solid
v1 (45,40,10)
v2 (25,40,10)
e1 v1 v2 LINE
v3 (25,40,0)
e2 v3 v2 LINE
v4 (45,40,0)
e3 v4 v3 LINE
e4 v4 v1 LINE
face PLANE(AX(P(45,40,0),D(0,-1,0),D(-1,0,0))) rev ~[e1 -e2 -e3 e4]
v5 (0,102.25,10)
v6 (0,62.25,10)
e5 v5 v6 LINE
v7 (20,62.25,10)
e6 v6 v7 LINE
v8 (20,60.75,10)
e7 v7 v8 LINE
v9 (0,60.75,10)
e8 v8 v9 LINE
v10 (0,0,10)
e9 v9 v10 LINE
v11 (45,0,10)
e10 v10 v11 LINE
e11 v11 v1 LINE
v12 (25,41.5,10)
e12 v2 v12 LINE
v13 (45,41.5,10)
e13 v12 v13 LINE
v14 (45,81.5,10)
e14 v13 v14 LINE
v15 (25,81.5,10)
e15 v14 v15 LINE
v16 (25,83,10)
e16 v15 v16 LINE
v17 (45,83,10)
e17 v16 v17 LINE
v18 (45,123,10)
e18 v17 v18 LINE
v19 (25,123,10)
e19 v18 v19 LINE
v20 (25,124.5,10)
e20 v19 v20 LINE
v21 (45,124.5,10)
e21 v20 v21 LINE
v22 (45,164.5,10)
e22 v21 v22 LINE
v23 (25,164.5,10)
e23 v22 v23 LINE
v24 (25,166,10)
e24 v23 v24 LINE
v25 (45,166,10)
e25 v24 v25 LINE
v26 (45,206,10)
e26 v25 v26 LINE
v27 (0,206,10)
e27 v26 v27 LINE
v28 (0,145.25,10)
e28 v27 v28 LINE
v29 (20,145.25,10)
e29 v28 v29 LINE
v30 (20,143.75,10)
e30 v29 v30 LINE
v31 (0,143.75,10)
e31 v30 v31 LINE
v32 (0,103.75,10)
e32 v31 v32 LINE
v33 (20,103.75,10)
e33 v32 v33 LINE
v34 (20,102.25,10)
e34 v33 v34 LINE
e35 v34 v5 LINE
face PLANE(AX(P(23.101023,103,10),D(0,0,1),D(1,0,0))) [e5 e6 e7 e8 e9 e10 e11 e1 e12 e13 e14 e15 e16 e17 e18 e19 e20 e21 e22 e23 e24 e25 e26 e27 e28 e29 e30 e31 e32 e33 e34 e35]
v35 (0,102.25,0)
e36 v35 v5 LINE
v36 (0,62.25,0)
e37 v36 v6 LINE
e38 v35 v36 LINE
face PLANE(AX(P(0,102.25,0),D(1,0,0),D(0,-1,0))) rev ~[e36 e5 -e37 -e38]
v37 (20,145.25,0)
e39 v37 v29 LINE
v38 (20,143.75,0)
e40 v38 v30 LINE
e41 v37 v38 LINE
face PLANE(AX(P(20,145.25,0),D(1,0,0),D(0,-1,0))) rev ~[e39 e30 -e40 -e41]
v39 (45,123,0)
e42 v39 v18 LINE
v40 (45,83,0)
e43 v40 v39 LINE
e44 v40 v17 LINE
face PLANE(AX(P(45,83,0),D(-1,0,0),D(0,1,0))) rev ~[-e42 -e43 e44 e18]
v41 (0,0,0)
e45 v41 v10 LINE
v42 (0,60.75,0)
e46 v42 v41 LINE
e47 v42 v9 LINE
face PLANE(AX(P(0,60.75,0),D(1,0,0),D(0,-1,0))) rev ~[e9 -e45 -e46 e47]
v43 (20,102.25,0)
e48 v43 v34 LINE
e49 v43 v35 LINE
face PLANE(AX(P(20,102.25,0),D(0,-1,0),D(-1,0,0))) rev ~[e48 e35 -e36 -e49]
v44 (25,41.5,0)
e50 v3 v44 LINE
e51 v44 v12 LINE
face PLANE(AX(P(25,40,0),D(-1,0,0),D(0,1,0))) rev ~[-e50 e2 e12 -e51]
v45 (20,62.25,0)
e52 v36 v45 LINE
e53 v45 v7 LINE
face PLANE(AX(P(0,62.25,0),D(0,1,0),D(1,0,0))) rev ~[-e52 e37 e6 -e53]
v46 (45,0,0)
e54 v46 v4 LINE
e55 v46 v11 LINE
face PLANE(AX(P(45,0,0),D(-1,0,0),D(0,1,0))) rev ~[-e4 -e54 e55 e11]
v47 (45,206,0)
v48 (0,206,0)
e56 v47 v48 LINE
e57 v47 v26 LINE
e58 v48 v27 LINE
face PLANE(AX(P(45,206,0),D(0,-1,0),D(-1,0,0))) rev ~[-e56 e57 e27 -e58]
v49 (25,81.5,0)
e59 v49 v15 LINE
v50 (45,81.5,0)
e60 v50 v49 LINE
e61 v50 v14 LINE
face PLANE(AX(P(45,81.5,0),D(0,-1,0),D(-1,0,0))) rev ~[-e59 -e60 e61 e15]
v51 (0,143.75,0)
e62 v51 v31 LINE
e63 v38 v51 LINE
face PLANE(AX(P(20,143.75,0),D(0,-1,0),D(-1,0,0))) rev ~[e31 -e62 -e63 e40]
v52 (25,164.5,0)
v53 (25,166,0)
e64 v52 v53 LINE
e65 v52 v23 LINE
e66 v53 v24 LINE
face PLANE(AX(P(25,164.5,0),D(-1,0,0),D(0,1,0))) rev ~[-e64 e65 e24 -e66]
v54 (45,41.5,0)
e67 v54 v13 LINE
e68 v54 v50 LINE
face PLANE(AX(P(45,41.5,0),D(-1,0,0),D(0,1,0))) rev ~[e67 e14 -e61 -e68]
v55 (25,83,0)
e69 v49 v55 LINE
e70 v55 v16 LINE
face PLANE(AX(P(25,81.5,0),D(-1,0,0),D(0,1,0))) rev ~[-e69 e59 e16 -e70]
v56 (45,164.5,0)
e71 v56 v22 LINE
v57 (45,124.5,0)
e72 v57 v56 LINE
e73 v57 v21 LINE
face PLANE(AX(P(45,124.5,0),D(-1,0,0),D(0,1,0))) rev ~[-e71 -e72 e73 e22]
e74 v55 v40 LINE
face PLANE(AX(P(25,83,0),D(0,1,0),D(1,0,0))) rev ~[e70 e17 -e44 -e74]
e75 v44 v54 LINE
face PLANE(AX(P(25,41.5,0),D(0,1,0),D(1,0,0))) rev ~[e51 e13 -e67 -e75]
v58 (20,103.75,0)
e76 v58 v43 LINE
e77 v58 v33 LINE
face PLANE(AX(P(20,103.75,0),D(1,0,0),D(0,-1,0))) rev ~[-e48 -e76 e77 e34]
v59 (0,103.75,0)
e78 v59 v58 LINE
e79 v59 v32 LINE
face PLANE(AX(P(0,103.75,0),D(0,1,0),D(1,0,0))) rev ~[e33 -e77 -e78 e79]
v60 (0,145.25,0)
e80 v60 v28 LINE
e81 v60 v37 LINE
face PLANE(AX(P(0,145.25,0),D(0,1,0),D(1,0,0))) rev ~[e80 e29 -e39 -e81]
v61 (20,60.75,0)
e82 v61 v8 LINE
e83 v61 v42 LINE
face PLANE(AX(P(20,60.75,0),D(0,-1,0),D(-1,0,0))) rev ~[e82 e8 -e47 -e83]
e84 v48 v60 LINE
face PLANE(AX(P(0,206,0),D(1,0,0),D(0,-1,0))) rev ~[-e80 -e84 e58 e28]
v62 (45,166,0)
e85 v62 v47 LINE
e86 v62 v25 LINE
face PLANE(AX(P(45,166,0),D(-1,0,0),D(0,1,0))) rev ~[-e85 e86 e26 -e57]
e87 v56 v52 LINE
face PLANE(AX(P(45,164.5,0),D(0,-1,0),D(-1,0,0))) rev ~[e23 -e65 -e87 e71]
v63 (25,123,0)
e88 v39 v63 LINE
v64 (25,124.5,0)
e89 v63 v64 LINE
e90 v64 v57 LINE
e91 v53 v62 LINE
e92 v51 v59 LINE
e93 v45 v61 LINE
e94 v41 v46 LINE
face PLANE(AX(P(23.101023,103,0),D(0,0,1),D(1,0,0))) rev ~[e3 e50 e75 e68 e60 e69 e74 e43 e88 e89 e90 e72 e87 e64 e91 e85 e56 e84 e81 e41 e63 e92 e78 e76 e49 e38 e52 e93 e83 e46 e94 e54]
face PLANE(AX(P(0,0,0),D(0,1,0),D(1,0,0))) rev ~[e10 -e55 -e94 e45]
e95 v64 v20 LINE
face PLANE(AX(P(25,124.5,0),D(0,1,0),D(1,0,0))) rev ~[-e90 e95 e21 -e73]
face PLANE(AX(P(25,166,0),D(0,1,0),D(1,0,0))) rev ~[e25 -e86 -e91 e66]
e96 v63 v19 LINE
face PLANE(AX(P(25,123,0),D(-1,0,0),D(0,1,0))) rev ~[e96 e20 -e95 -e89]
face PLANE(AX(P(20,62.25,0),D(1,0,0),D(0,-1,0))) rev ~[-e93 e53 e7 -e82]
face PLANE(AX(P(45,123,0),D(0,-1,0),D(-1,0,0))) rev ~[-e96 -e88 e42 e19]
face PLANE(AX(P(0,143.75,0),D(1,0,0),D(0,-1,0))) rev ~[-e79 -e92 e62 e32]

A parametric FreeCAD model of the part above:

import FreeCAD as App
import Part
import Sketcher

V = App.Vector
Q = App.Units.Quantity

doc = App.newDocument("Part")
body = doc.addObject("PartDesign::Body", "Body")

sketch1 = body.newObject("Sketcher::SketchObject", "Sketch")
sketch1.AttachmentSupport = (doc.getObject("XY_Plane"), [""])
sketch1.MapMode = "FlatFace"
sketch1.addGeometry([
    Part.LineSegment(V(0, 60.8, 0), V(0, 0, 0)),
    Part.LineSegment(V(0, 0, 0), V(45, 0, 0)),
    Part.LineSegment(V(45, 0, 0), V(45, 40, 0)),
    Part.LineSegment(V(45, 40, 0), V(25, 40, 0)),
    Part.LineSegment(V(25, 40, 0), V(25, 41.5, 0)),
    Part.LineSegment(V(25, 41.5, 0), V(45, 41.5, 0)),
    Part.LineSegment(V(45, 41.5, 0), V(45, 81.5, 0)),
    Part.LineSegment(V(45, 81.5, 0), V(25, 81.5, 0)),
    Part.LineSegment(V(25, 81.5, 0), V(25, 83, 0)),
    Part.LineSegment(V(25, 83, 0), V(45, 83, 0)),
    Part.LineSegment(V(45, 83, 0), V(45, 123, 0)),
    Part.LineSegment(V(45, 123, 0), V(25, 123, 0)),
    Part.LineSegment(V(25, 123, 0), V(25, 124.5, 0)),
    Part.LineSegment(V(25, 124.5, 0), V(45, 124.5, 0)),
    Part.LineSegment(V(45, 124.5, 0), V(45, 164.5, 0)),
    Part.LineSegment(V(45, 164.5, 0), V(25, 164.5, 0)),
    Part.LineSegment(V(25, 164.5, 0), V(25, 166, 0)),
    Part.LineSegment(V(25, 166, 0), V(45, 166, 0)),
    Part.LineSegment(V(45, 166, 0), V(45, 206, 0)),
    Part.LineSegment(V(45, 206, 0), V(0, 206, 0)),
    Part.LineSegment(V(0, 206, 0), V(0, 145.2, 0)),
    Part.LineSegment(V(0, 145.2, 0), V(20, 145.2, 0)),
    Part.LineSegment(V(20, 145.2, 0), V(20, 143.8, 0)),
    Part.LineSegment(V(20, 143.8, 0), V(0, 143.8, 0)),
    Part.LineSegment(V(0, 143.8, 0), V(0, 103.8, 0)),
    Part.LineSegment(V(0, 103.8, 0), V(20, 103.8, 0)),
    Part.LineSegment(V(20, 103.8, 0), V(20, 102.2, 0)),
    Part.LineSegment(V(20, 102.2, 0), V(0, 102.2, 0)),
    Part.LineSegment(V(0, 102.2, 0), V(0, 62.2, 0)),
    Part.LineSegment(V(0, 62.2, 0), V(20, 62.2, 0)),
    Part.LineSegment(V(20, 62.2, 0), V(20, 60.8, 0)),
    Part.LineSegment(V(20, 60.8, 0), V(0, 60.8, 0)),
], False)
sketch1.addConstraint([
    Sketcher.Constraint("Coincident", 0, 2, 1, 1),
    Sketcher.Constraint("Coincident", 1, 2, 2, 1),
    Sketcher.Constraint("Coincident", 2, 2, 3, 1),
    Sketcher.Constraint("Coincident", 3, 2, 4, 1),
    Sketcher.Constraint("Coincident", 4, 2, 5, 1),
    Sketcher.Constraint("Coincident", 5, 2, 6, 1),
    Sketcher.Constraint("Coincident", 6, 2, 7, 1),
    Sketcher.Constraint("Coincident", 7, 2, 8, 1),
    Sketcher.Constraint("Coincident", 8, 2, 9, 1),
    Sketcher.Constraint("Coincident", 9, 2, 10, 1),
    Sketcher.Constraint("Coincident", 10, 2, 11, 1),
    Sketcher.Constraint("Coincident", 11, 2, 12, 1),
    Sketcher.Constraint("Coincident", 12, 2, 13, 1),
    Sketcher.Constraint("Coincident", 13, 2, 14, 1),
    Sketcher.Constraint("Coincident", 14, 2, 15, 1),
    Sketcher.Constraint("Coincident", 15, 2, 16, 1),
    Sketcher.Constraint("Coincident", 16, 2, 17, 1),
    Sketcher.Constraint("Coincident", 17, 2, 18, 1),
    Sketcher.Constraint("Coincident", 18, 2, 19, 1),
    Sketcher.Constraint("Coincident", 19, 2, 20, 1),
    Sketcher.Constraint("Coincident", 20, 2, 21, 1),
    Sketcher.Constraint("Coincident", 21, 2, 22, 1),
    Sketcher.Constraint("Coincident", 22, 2, 23, 1),
    Sketcher.Constraint("Coincident", 23, 2, 24, 1),
    Sketcher.Constraint("Coincident", 24, 2, 25, 1),
    Sketcher.Constraint("Coincident", 25, 2, 26, 1),
    Sketcher.Constraint("Coincident", 26, 2, 27, 1),
    Sketcher.Constraint("Coincident", 27, 2, 28, 1),
    Sketcher.Constraint("Coincident", 28, 2, 29, 1),
    Sketcher.Constraint("Coincident", 29, 2, 30, 1),
    Sketcher.Constraint("Coincident", 30, 2, 31, 1),
    Sketcher.Constraint("Coincident", 31, 2, 0, 1),
    Sketcher.Constraint("Vertical", 0),
    Sketcher.Constraint("Horizontal", 1),
    Sketcher.Constraint("Vertical", 2),
    Sketcher.Constraint("Horizontal", 3),
    Sketcher.Constraint("Vertical", 4),
    Sketcher.Constraint("Horizontal", 5),
    Sketcher.Constraint("Vertical", 6),
    Sketcher.Constraint("Horizontal", 7),
    Sketcher.Constraint("Vertical", 8),
    Sketcher.Constraint("Horizontal", 9),
    Sketcher.Constraint("Vertical", 10),
    Sketcher.Constraint("Horizontal", 11),
    Sketcher.Constraint("Vertical", 12),
    Sketcher.Constraint("Horizontal", 13),
    Sketcher.Constraint("Vertical", 14),
    Sketcher.Constraint("Horizontal", 15),
    Sketcher.Constraint("Vertical", 16),
    Sketcher.Constraint("Horizontal", 17),
    Sketcher.Constraint("Vertical", 18),
    Sketcher.Constraint("Horizontal", 19),
    Sketcher.Constraint("Vertical", 20),
    Sketcher.Constraint("Horizontal", 21),
    Sketcher.Constraint("Vertical", 22),
    Sketcher.Constraint("Horizontal", 23),
    Sketcher.Constraint("Vertical", 24),
    Sketcher.Constraint("Horizontal", 25),
    Sketcher.Constraint("Vertical", 26),
    Sketcher.Constraint("Horizontal", 27),
    Sketcher.Constraint("Vertical", 28),
    Sketcher.Constraint("Horizontal", 29),
    Sketcher.Constraint("Vertical", 30),
    Sketcher.Constraint("Horizontal", 31),
    Sketcher.Constraint("Coincident", 0, 2, -1, 1),
    Sketcher.Constraint("PointOnObject", 19, 2, -2),
    Sketcher.Constraint("PointOnObject", 23, 2, -2),
    Sketcher.Constraint("PointOnObject", 27, 2, -2),
    Sketcher.Constraint("Vertical", 2, 2, 5, 2),
    Sketcher.Constraint("Vertical", 4, 2, 7, 2),
    Sketcher.Constraint("Vertical", 6, 2, 9, 2),
    Sketcher.Constraint("Vertical", 8, 2, 11, 2),
    Sketcher.Constraint("Vertical", 10, 2, 13, 2),
    Sketcher.Constraint("Vertical", 12, 2, 15, 2),
    Sketcher.Constraint("Vertical", 14, 2, 17, 2),
    Sketcher.Constraint("Vertical", 22, 2, 25, 2),
    Sketcher.Constraint("Vertical", 26, 2, 29, 2),
    Sketcher.Constraint("Equal", 17, 21),
    Sketcher.Constraint("Equal", 2, 6),
    Sketcher.Constraint("Equal", 4, 8),
    Sketcher.Constraint("Equal", 6, 10),
    Sketcher.Constraint("Equal", 8, 12),
    Sketcher.Constraint("Equal", 10, 14),
    Sketcher.Constraint("Equal", 12, 16),
    Sketcher.Constraint("Equal", 14, 18),
    Sketcher.Constraint("Equal", 0, 20),
    Sketcher.Constraint("Equal", 16, 22),
    Sketcher.Constraint("Equal", 18, 24),
    Sketcher.Constraint("Equal", 22, 26),
    Sketcher.Constraint("Equal", 24, 28),
    Sketcher.Constraint("Equal", 26, 30),
    Sketcher.Constraint("DistanceX", 1, 1, 1, 2, Q("45 mm")),
    Sketcher.Constraint("DistanceX", 3, 2, 3, 1, Q("20 mm")),
    Sketcher.Constraint("DistanceY", 2, 1, 2, 2, Q("40 mm")),
    Sketcher.Constraint("DistanceY", 4, 1, 4, 2, Q("1.5 mm")),
])
pad1 = body.newObject("PartDesign::Pad", "Pad")
pad1.Profile = sketch1
pad1.Length = 10

doc.recompute()
